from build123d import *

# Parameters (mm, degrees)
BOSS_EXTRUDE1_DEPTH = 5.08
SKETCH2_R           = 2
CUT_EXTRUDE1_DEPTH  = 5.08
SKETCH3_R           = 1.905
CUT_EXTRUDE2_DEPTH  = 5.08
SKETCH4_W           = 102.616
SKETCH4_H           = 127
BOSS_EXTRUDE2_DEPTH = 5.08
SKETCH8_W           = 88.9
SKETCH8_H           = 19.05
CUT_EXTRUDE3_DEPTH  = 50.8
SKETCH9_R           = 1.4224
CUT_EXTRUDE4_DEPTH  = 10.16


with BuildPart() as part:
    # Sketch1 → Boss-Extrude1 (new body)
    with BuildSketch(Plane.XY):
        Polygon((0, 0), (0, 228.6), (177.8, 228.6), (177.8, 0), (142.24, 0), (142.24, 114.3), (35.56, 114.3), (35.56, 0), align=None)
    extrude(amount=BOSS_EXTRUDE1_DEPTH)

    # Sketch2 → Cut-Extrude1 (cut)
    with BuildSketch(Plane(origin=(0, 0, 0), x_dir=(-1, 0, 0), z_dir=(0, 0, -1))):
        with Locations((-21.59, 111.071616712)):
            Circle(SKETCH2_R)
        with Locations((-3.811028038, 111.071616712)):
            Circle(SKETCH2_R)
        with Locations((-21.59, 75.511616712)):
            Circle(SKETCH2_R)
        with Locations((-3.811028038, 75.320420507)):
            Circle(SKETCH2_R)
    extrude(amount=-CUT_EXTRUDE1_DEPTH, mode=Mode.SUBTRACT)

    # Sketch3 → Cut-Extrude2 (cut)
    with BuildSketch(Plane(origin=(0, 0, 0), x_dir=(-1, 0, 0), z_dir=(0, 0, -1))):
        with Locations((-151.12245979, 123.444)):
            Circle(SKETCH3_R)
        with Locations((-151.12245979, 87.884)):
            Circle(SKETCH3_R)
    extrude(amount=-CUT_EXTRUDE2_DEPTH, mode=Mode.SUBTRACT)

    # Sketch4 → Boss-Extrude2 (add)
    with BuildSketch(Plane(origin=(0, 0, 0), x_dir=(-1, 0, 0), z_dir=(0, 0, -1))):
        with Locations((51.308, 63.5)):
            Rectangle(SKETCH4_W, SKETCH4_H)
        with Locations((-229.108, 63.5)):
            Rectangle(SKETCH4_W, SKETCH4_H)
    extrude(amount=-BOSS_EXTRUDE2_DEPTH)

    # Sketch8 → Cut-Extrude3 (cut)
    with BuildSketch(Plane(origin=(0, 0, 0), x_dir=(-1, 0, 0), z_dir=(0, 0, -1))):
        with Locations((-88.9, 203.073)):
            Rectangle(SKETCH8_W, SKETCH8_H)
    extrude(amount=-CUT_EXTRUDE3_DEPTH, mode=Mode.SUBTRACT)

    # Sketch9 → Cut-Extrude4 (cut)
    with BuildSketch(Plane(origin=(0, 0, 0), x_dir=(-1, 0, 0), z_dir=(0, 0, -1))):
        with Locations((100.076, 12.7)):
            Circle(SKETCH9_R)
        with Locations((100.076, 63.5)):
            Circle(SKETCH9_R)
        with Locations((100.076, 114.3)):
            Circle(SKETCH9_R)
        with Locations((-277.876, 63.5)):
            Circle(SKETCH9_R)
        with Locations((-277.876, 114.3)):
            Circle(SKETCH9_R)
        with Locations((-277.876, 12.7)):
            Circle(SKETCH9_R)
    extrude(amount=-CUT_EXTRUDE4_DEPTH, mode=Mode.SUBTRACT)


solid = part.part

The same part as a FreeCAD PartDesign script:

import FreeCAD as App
import Part
import Sketcher
from FreeCAD import Vector
Q = App.Units.Quantity

doc = App.newDocument("Part")
params = doc.addObject("Spreadsheet::Sheet", "Params")
for row, (alias, value) in enumerate([
    ("sketch1_width", "7 in"),
    ("sketch1_height", "9 in"),
    ("sketch1_width2", "1.4 in"),
    ("sketch1_height2", "4.5 in"),
    ("pad1_length", "0.2 in"),
    ("pocket1_length", "0.2 in"),
    ("sketch3_diameter", "0.15 in"),
    ("pocket2_length", "0.2 in"),
    ("sketch4_height", "5 in"),
    ("sketch4_width", "4.04 in"),
    ("pad2_length", "0.2 in"),
    ("sketch5_width", "3.5 in"),
    ("sketch5_height", "0.75 in"),
    ("pocket3_length", "2 in"),
    ("sketch6_diameter", "0.112 in"),
    ("pocket4_length", "0.4 in"),
], start=1):
    params.set(f"A{row}", alias)
    params.set(f"B{row}", "=" + value)
    params.setAlias(f"B{row}", alias)

body = doc.addObject("PartDesign::Body", "Body")

# Sketch on XY plane
sketch1 = body.newObject("Sketcher::SketchObject", "Sketch")
sketch1.AttachmentSupport = (doc.getObject("XY_Plane"), [""])
sketch1.MapMode = "FlatFace"
sketch1.addGeometry([
    Part.LineSegment(Vector(0, 229, 0), Vector(0, 0, 0)),  # 0
    Part.LineSegment(Vector(0, 0, 0), Vector(36, 0, 0)),  # 1
    Part.LineSegment(Vector(36, 0, 0), Vector(36, 114, 0)),  # 2
    Part.LineSegment(Vector(36, 114, 0), Vector(142, 114, 0)),  # 3
    Part.LineSegment(Vector(142, 114, 0), Vector(142, 0, 0)),  # 4
    Part.LineSegment(Vector(142, 0, 0), Vector(178, 0, 0)),  # 5
    Part.LineSegment(Vector(178, 0, 0), Vector(178, 229, 0)),  # 6
    Part.LineSegment(Vector(178, 229, 0), Vector(0, 229, 0)),  # 7
], False)
sketch1.addConstraint([
    Sketcher.Constraint("Coincident", 0, 2, 1, 1),
    Sketcher.Constraint("Coincident", 1, 2, 2, 1),
    Sketcher.Constraint("Coincident", 2, 2, 3, 1),
    Sketcher.Constraint("Coincident", 3, 2, 4, 1),
    Sketcher.Constraint("Coincident", 4, 2, 5, 1),
    Sketcher.Constraint("Coincident", 5, 2, 6, 1),
    Sketcher.Constraint("Coincident", 6, 2, 7, 1),
    Sketcher.Constraint("Coincident", 7, 2, 0, 1),
    Sketcher.Constraint("Vertical", 0),
    Sketcher.Constraint("Horizontal", 1),
    Sketcher.Constraint("Vertical", 2),
    Sketcher.Constraint("Horizontal", 3),
    Sketcher.Constraint("Vertical", 4),
    Sketcher.Constraint("Horizontal", 5),
    Sketcher.Constraint("Vertical", 6),
    Sketcher.Constraint("Horizontal", 7),
    Sketcher.Constraint("Coincident", 0, 2, -1, 1),
    Sketcher.Constraint("PointOnObject", 4, 2, -1),
    Sketcher.Constraint("Equal", 1, 5),
    Sketcher.Constraint("DistanceX", 7, 2, 7, 1, Q("7 in")),
    Sketcher.Constraint("DistanceY", 0, 2, 0, 1, Q("9 in")),
    Sketcher.Constraint("DistanceX", 1, 1, 1, 2, Q("1.4 in")),
    Sketcher.Constraint("DistanceY", 2, 1, 2, 2, Q("4.5 in")),
])
sketch1.setExpression("Constraints[19]", "Params.sketch1_width")
sketch1.setExpression("Constraints[20]", "Params.sketch1_height")
sketch1.setExpression("Constraints[21]", "Params.sketch1_width2")
sketch1.setExpression("Constraints[22]", "Params.sketch1_height2")
pad1 = body.newObject("PartDesign::Pad", "Pad")
pad1.Profile = sketch1
pad1.setExpression("Length", "Params.pad1_length")

# Sketch on XY plane
sketch2 = body.newObject("Sketcher::SketchObject", "Sketch001")
sketch2.AttachmentSupport = (doc.getObject("XY_Plane"), [""])
sketch2.MapMode = "FlatFace"
sketch2.addGeometry([
    Part.Circle(Vector(21.6, 111.1, 0), Vector(0, 0, 1), 2),
    Part.Circle(Vector(3.8, 111.1, 0), Vector(0, 0, 1), 2),
    Part.Circle(Vector(21.6, 75.5, 0), Vector(0, 0, 1), 2),
    Part.Circle(Vector(3.8, 75.3, 0), Vector(0, 0, 1), 2),
], False)
sketch2.addConstraint([
    Sketcher.Constraint("Equal", 0, 1),
    Sketcher.Constraint("Equal", 1, 2),
    Sketcher.Constraint("Equal", 2, 3),
    Sketcher.Constraint("Horizontal", 0, 3, 1, 3),
    Sketcher.Constraint("Vertical", 0, 3, 2, 3),
    Sketcher.Constraint("Vertical", 1, 3, 3, 3),
    Sketcher.Constraint("DistanceY", 2, 3, 0, 3, Q("1.4 in")),
    Sketcher.Constraint("Diameter", 0, Q("4 mm")),
    Sketcher.Constraint("DistanceX", -1, 1, 0, 3, Q("0.85 in")),
    Sketcher.Constraint("DistanceX", -1, 1, 1, 3, Q("3.811028 mm")),
    Sketcher.Constraint("DistanceY", -1, 1, 3, 3, Q("75.320421 mm")),
    Sketcher.Constraint("DistanceY", -1, 1, 0, 3, Q("111.071617 mm")),
])
pocket1 = body.newObject("PartDesign::Pocket", "Pocket")
pocket1.Profile = sketch2
pocket1.setExpression("Length", "Params.pocket1_length")
pocket1.Reversed = True

# Sketch on XY plane
sketch3 = body.newObject("Sketcher::SketchObject", "Sketch002")
sketch3.AttachmentSupport = (doc.getObject("XY_Plane"), [""])
sketch3.MapMode = "FlatFace"
sketch3.addGeometry([
    Part.Circle(Vector(151.1, 123.4, 0), Vector(0, 0, 1), 1.9),
    Part.Circle(Vector(151.1, 87.9, 0), Vector(0, 0, 1), 1.9),
], False)
sketch3.addConstraint([
    Sketcher.Constraint("Equal", 0, 1),
    Sketcher.Constraint("Vertical", 0, 3, 1, 3),
    Sketcher.Constraint("Diameter", 0, Q("0.15 in")),
    Sketcher.Constraint("DistanceY", 1, 3, 0, 3, Q("1.4 in")),
    Sketcher.Constraint("DistanceY", -1, 1, 0, 3, Q("4.86 in")),
    Sketcher.Constraint("DistanceX", -1, 1, 0, 3, Q("151.12246 mm")),
])
sketch3.setExpression("Constraints[2]", "Params.sketch3_diameter")
pocket2 = body.newObject("PartDesign::Pocket", "Pocket001")
pocket2.Profile = sketch3
pocket2.setExpression("Length", "Params.pocket2_length")
pocket2.Reversed = True

# Sketch on XY plane
sketch4 = body.newObject("Sketcher::SketchObject", "Sketch003")
sketch4.AttachmentSupport = (doc.getObject("XY_Plane"), [""])
sketch4.MapMode = "FlatFace"
sketch4.addGeometry([
    Part.LineSegment(Vector(0, 127, 0), Vector(0, 0, 0)),  # 0
    Part.LineSegment(Vector(0, 0, 0), Vector(-103, 0, 0)),  # 1
    Part.LineSegment(Vector(-103, 0, 0), Vector(-103, 127, 0)),  # 2
    Part.LineSegment(Vector(-103, 127, 0), Vector(0, 127, 0)),  # 3
    Part.LineSegment(Vector(280, 127, 0), Vector(280, 0, 0)),  # 4
    Part.LineSegment(Vector(280, 0, 0), Vector(178, 0, 0)),  # 5
    Part.LineSegment(Vector(178, 0, 0), Vector(178, 127, 0)),  # 6
    Part.LineSegment(Vector(178, 127, 0), Vector(280, 127, 0)),  # 7
], False)
sketch4.addConstraint([
    Sketcher.Constraint("Coincident", 0, 2, 1, 1),
    Sketcher.Constraint("Coincident", 1, 2, 2, 1),
    Sketcher.Constraint("Coincident", 2, 2, 3, 1),
    Sketcher.Constraint("Coincident", 3, 2, 0, 1),
    Sketcher.Constraint("Coincident", 4, 2, 5, 1),
    Sketcher.Constraint("Coincident", 5, 2, 6, 1),
    Sketcher.Constraint("Coincident", 6, 2, 7, 1),
    Sketcher.Constraint("Coincident", 7, 2, 4, 1),
    Sketcher.Constraint("Vertical", 0),
    Sketcher.Constraint("Horizontal", 1),
    Sketcher.Constraint("Vertical", 2),
    Sketcher.Constraint("Horizontal", 3),
    Sketcher.Constraint("Vertical", 4),
    Sketcher.Constraint("Horizontal", 5),
    Sketcher.Constraint("Vertical", 6),
    Sketcher.Constraint("Horizontal", 7),
    Sketcher.Constraint("Coincident", 0, 2, -1, 1),
    Sketcher.Constraint("PointOnObject", 4, 2, -1),
    Sketcher.Constraint("Horizontal", 3, 2, 6, 2),
    Sketcher.Constraint("Equal", 3, 5),
    Sketcher.Constraint("DistanceY", 0, 2, 0, 1, Q("5 in")),
    Sketcher.Constraint("DistanceX", -1, 1, 5, 2, Q("7 in")),
    Sketcher.Constraint("DistanceX", 1, 2, 1, 1, Q("4.04 in")),
])
sketch4.setExpression("Constraints[20]", "Params.sketch4_height")
sketch4.setExpression("Constraints[22]", "Params.sketch4_width")
pad2 = body.newObject("PartDesign::Pad", "Pad001")
pad2.Profile = sketch4
pad2.setExpression("Length", "Params.pad2_length")

# Sketch on XY plane
sketch5 = body.newObject("Sketcher::SketchObject", "Sketch004")
sketch5.AttachmentSupport = (doc.getObject("XY_Plane"), [""])
sketch5.MapMode = "FlatFace"
sketch5.addGeometry([
    Part.LineSegment(Vector(133, 213, 0), Vector(133, 194, 0)),
    Part.LineSegment(Vector(133, 194, 0), Vector(44, 194, 0)),
    Part.LineSegment(Vector(44, 194, 0), Vector(44, 213, 0)),
    Part.LineSegment(Vector(44, 213, 0), Vector(133, 213, 0)),
], False)
sketch5.addConstraint([
    Sketcher.Constraint("Coincident", 0, 2, 1, 1),
    Sketcher.Constraint("Coincident", 1, 2, 2, 1),
    Sketcher.Constraint("Coincident", 2, 2, 3, 1),
    Sketcher.Constraint("Coincident", 3, 2, 0, 1),
    Sketcher.Constraint("Vertical", 0),
    Sketcher.Constraint("Horizontal", 1),
    Sketcher.Constraint("Vertical", 2),
    Sketcher.Constraint("Horizontal", 3),
    Sketcher.Constraint("DistanceX", 1, 2, 1, 1, Q("3.5 in")),
    Sketcher.Constraint("DistanceY", 0, 2, 0, 1, Q("0.75 in")),
    Sketcher.Constraint("DistanceX", -1, 1, 0, 2, Q("5.25 in")),
    Sketcher.Constraint("DistanceY", -1, 1, 0, 2, Q("7.62 in")),
])
sketch5.setExpression("Constraints[8]", "Params.sketch5_width")
sketch5.setExpression("Constraints[9]", "Params.sketch5_height")
pocket3 = body.newObject("PartDesign::Pocket", "Pocket002")
pocket3.Profile = sketch5
pocket3.setExpression("Length", "Params.pocket3_length")
pocket3.Reversed = True

# Sketch on XY plane
sketch6 = body.newObject("Sketcher::SketchObject", "Sketch005")
sketch6.AttachmentSupport = (doc.getObject("XY_Plane"), [""])
sketch6.MapMode = "FlatFace"
sketch6.addGeometry([
    Part.Circle(Vector(-100.1, 12.7, 0), Vector(0, 0, 1), 1.4),  # 0
    Part.Circle(Vector(-100.1, 63.5, 0), Vector(0, 0, 1), 1.4),  # 1
    Part.Circle(Vector(-100.1, 114.3, 0), Vector(0, 0, 1), 1.4),  # 2
    Part.Circle(Vector(277.9, 63.5, 0), Vector(0, 0, 1), 1.4),  # 3
    Part.Circle(Vector(277.9, 114.3, 0), Vector(0, 0, 1), 1.4),  # 4
    Part.Circle(Vector(277.9, 12.7, 0), Vector(0, 0, 1), 1.4),  # 5
], False)
sketch6.addConstraint([
    Sketcher.Constraint("Equal", 0, 1),
    Sketcher.Constraint("Equal", 1, 2),
    Sketcher.Constraint("Equal", 2, 3),
    Sketcher.Constraint("Equal", 3, 4),
    Sketcher.Constraint("Equal", 4, 5),
    Sketcher.Constraint("Horizontal", 1, 3, 3, 3),
    Sketcher.Constraint("Horizontal", 2, 3, 4, 3),
    Sketcher.Constraint("Horizontal", 0, 3, 5, 3),
    Sketcher.Constraint("Vertical", 0, 3, 1, 3),
    Sketcher.Constraint("Vertical", 1, 3, 2, 3),
    Sketcher.Constraint("Vertical", 3, 3, 4, 3),
    Sketcher.Constraint("Vertical", 4, 3, 5, 3),
    Sketcher.Constraint("Diameter", 0, Q("0.112 in")),
    Sketcher.Constraint("DistanceY", 0, 3, 1, 3, Q("2 in")),
    Sketcher.Constraint("DistanceY", 1, 3, 2, 3, Q("2 in")),
    Sketcher.Constraint("DistanceY", -1, 1, 0, 3, Q("0.5 in")),
    Sketcher.Constraint("DistanceX", 0, 3, -1, 1, Q("3.94 in")),
    Sketcher.Constraint("DistanceX", -1, 1, 3, 3, Q("10.94 in")),
])
sketch6.setExpression("Constraints[12]", "Params.sketch6_diameter")
pocket4 = body.newObject("PartDesign::Pocket", "Pocket003")
pocket4.Profile = sketch6
pocket4.setExpression("Length", "Params.pocket4_length")
pocket4.Reversed = True

doc.recompute()
